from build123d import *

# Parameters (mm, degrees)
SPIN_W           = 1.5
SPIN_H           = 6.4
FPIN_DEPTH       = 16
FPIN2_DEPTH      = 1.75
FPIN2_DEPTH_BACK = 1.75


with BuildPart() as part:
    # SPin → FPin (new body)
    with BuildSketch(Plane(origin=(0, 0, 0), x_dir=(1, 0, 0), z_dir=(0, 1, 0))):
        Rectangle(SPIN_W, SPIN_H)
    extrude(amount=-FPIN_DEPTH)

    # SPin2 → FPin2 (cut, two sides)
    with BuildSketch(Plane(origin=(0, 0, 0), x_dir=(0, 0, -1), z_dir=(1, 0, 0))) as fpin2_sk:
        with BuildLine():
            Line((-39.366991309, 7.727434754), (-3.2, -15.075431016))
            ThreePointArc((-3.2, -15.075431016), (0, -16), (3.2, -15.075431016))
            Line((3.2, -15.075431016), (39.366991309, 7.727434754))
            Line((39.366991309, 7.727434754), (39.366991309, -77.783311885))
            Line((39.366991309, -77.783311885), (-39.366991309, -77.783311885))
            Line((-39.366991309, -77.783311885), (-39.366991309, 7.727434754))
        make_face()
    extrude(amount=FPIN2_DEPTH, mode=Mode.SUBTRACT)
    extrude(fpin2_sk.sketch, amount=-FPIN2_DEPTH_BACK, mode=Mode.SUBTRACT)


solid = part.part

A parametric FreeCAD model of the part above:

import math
import FreeCAD as App
import Part
import Sketcher


def add_polygon(sketch, points):
    """Adds a closed chain of lines whose ends are joined by coincident constraints."""
    first, n = sketch.GeometryCount, len(points)
    for a, b in zip(points, points[1:] + points[:1]):
        sketch.addGeometry(Part.LineSegment(App.Vector(*a, 0), App.Vector(*b, 0)), False)
    for i in range(n):
        sketch.addConstraint(Sketcher.Constraint("Coincident", first + i, 2, first + (i + 1) % n, 1))

doc = App.newDocument("Part")
body = doc.addObject("PartDesign::Body", "Body")

sketch1 = body.newObject("Sketcher::SketchObject", "Sketch")
sketch1.AttachmentSupport = (doc.getObject("XZ_Plane"), [""])
sketch1.MapMode = "FlatFace"
add_polygon(sketch1, [(-0.8, -3.2), (-0.8, 3.2), (0.8, 3.2), (0.8, -3.2)])
sketch1.addConstraint([
    Sketcher.Constraint("Vertical", 0),
    Sketcher.Constraint("Horizontal", 1),
    Sketcher.Constraint("Vertical", 2),
    Sketcher.Constraint("Horizontal", 3),
    Sketcher.Constraint("Symmetric", 0, 2, 2, 2, -1, 1),
    Sketcher.Constraint("DistanceX", 1, 1, 1, 2, 1.5),
    Sketcher.Constraint("DistanceY", 0, 1, 0, 2, 6.4),
])
pad1 = body.newObject("PartDesign::Pad", "Pad")
pad1.Profile = sketch1
pad1.Length = 16

sketch2 = body.newObject("Sketcher::SketchObject", "Sketch001")
sketch2.AttachmentSupport = (doc.getObject("YZ_Plane"), [""])
sketch2.MapMode = "FlatFace"
sketch2.addGeometry([
    Part.LineSegment(App.Vector(-15, 3, 0), App.Vector(8, 39, 0)),
    Part.LineSegment(App.Vector(8, 39, 0), App.Vector(-78, 39, 0)),
    Part.LineSegment(App.Vector(-78, 39, 0), App.Vector(-78, -39, 0)),
    Part.LineSegment(App.Vector(-78, -39, 0), App.Vector(8, -39, 0)),
    Part.LineSegment(App.Vector(8, -39, 0), App.Vector(-15, -3, 0)),
    Part.ArcOfCircle(Part.Circle(App.Vector(-10, 0, 0), App.Vector(0, 0, 1), 6), math.radians(148), math.radians(212)),
], False)
sketch2.addConstraint([
    Sketcher.Constraint("Coincident", 0, 2, 1, 1),
    Sketcher.Constraint("Coincident", 1, 2, 2, 1),
    Sketcher.Constraint("Coincident", 2, 2, 3, 1),
    Sketcher.Constraint("Coincident", 3, 2, 4, 1),
    Sketcher.Constraint("Tangent", 4, 2, 5, 2),
    Sketcher.Constraint("Tangent", 5, 1, 0, 1),
    Sketcher.Constraint("Horizontal", 1),
    Sketcher.Constraint("Vertical", 2),
    Sketcher.Constraint("Horizontal", 3),
    Sketcher.Constraint("Symmetric", 0, 2, 3, 2, -1),
    Sketcher.Constraint("PointOnObject", 5, 3, -1),
    Sketcher.Constraint("Radius", 5, 6.0),
    Sketcher.Constraint("DistanceX", 5, 3, -1, 1, 10.0),
    Sketcher.Constraint("DistanceY", 4, 2, -1, 1, 3.2),
    Sketcher.Constraint("DistanceX", 1, 2, 1, 1, 85.510747),
    Sketcher.Constraint("DistanceY", 2, 2, 2, 1, 78.733983),
])
pocket1 = body.newObject("PartDesign::Pocket", "Pocket")
pocket1.Profile = sketch2
pocket1.Type = "ThroughAll"
pocket1.Midplane = True

doc.recompute()
